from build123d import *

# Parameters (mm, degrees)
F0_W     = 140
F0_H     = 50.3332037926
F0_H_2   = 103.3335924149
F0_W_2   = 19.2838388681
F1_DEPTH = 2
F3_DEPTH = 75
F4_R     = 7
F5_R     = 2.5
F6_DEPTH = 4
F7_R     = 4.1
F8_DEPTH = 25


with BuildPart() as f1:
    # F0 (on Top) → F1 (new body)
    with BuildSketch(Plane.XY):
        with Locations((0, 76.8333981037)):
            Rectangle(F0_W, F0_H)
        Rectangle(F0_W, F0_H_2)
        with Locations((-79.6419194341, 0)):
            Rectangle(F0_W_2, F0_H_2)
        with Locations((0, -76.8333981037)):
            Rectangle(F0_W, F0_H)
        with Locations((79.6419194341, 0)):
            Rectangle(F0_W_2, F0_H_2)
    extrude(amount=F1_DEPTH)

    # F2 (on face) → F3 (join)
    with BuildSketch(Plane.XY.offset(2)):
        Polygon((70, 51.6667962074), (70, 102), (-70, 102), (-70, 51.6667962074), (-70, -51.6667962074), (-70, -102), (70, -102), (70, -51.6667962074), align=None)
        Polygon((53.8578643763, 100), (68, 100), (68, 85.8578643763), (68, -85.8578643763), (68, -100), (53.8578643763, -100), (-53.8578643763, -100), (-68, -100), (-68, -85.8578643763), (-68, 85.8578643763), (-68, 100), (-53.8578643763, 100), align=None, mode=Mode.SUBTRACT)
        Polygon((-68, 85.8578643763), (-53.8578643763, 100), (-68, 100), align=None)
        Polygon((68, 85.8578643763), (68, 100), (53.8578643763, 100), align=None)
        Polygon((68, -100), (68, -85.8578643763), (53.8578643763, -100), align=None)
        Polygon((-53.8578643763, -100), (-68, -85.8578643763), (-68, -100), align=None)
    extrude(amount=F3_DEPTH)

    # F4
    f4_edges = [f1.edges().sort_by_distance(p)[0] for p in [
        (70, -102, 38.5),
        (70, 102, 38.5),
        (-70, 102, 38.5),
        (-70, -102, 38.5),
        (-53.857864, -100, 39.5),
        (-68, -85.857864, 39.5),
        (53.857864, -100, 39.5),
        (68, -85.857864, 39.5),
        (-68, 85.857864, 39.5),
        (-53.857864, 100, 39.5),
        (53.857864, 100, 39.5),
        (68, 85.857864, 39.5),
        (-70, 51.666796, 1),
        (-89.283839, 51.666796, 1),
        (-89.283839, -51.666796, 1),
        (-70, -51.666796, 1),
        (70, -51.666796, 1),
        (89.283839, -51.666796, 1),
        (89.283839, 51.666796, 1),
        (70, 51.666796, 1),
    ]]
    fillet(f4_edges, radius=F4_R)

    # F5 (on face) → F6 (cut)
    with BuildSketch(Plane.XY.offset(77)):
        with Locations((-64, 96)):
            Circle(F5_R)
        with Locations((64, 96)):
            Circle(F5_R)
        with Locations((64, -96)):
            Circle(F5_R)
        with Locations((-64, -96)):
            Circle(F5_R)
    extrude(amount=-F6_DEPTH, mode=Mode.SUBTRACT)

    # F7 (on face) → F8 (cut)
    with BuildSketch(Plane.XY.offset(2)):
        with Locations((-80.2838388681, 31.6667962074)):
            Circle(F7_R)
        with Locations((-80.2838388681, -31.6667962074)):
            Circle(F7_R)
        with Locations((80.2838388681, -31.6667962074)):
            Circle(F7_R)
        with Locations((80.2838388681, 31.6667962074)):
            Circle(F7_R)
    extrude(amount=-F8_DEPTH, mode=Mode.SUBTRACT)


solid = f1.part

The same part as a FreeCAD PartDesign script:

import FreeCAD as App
import Part
import Sketcher

V = App.Vector
Q = App.Units.Quantity


def edges_at(feature, points):
    """Names of the edges that pass closest to the given points."""
    edges = feature.Shape.Edges
    near = lambda p: min(range(len(edges)), key=lambda i: edges[i].distToShape(Part.Vertex(*p))[0])
    return sorted({f"Edge{near(p) + 1}" for p in points})


def add_polygon(sketch, points):
    """Adds a closed chain of lines whose ends are joined by coincident constraints."""
    first, n = sketch.GeometryCount, len(points)
    for a, b in zip(points, points[1:] + points[:1]):
        sketch.addGeometry(Part.LineSegment(App.Vector(*a, 0), App.Vector(*b, 0)), False)
    for i in range(n):
        sketch.addConstraint(Sketcher.Constraint("Coincident", first + i, 2, first + (i + 1) % n, 1))

doc = App.newDocument("Part")
body = doc.addObject("PartDesign::Body", "Body")

# Sketch on XY plane
sketch1 = body.newObject("Sketcher::SketchObject", "Sketch")
sketch1.AttachmentSupport = (doc.getObject("XY_Plane"), [""])
sketch1.MapMode = "FlatFace"
add_polygon(sketch1, [(-70, 102), (-70, 52), (-89, 52), (-89, -52), (-70, -52), (-70, -102), (70, -102), (70, -52), (89, -52), (89, 52), (70, 52), (70, 102)])  # lines 0-11
sketch1.addConstraint([
    Sketcher.Constraint("Vertical", 0),
    Sketcher.Constraint("Horizontal", 1),
    Sketcher.Constraint("Vertical", 2),
    Sketcher.Constraint("Horizontal", 3),
    Sketcher.Constraint("Vertical", 4),
    Sketcher.Constraint("Horizontal", 5),
    Sketcher.Constraint("Vertical", 6),
    Sketcher.Constraint("Horizontal", 7),
    Sketcher.Constraint("Vertical", 8),
    Sketcher.Constraint("Horizontal", 9),
    Sketcher.Constraint("Vertical", 10),
    Sketcher.Constraint("Horizontal", 11),
    Sketcher.Constraint("Symmetric", 0, 2, 6, 2, -1, 1),
    Sketcher.Constraint("Symmetric", 2, 2, 8, 2, -1, 1),
    Sketcher.Constraint("Symmetric", 4, 2, 10, 2, -1, 1),
    Sketcher.Constraint("Symmetric", 3, 2, 6, 2, -2),
    Sketcher.Constraint("DistanceX", 5, 1, 5, 2, Q("140 mm")),
    Sketcher.Constraint("DistanceY", 4, 2, -1, 1, Q("102 mm")),
    Sketcher.Constraint("DistanceX", 1, 2, 1, 1, Q("19.283839 mm")),
    Sketcher.Constraint("DistanceY", 0, 2, 0, 1, Q("50.333204 mm")),
])
pad1 = body.newObject("PartDesign::Pad", "Pad")
pad1.Profile = sketch1
pad1.Length = 2

# Sketch on XY plane
sketch2 = body.newObject("Sketcher::SketchObject", "Sketch001")
sketch2.AttachmentSupport = (doc.getObject("XY_Plane"), [""])
sketch2.MapMode = "FlatFace"
sketch2.AttachmentOffset = App.Placement(V(0, 0, 2), App.Rotation())
add_polygon(sketch2, [(70, 102), (-70, 102), (-70, -102), (70, -102)])  # lines 0-3
add_polygon(sketch2, [(-54, 100), (54, 100), (68, 86), (68, -86), (54, -100), (-54, -100), (-68, -86), (-68, 86)])  # lines 4-11
sketch2.addConstraint([
    Sketcher.Constraint("Horizontal", 0),
    Sketcher.Constraint("Vertical", 1),
    Sketcher.Constraint("Horizontal", 2),
    Sketcher.Constraint("Vertical", 3),
    Sketcher.Constraint("Horizontal", 4),
    Sketcher.Constraint("Vertical", 6),
    Sketcher.Constraint("Horizontal", 8),
    Sketcher.Constraint("Vertical", 10),
    Sketcher.Constraint("Symmetric", 0, 2, 2, 2, -1, 1),
    Sketcher.Constraint("Symmetric", 4, 2, 8, 2, -1, 1),
    Sketcher.Constraint("Symmetric", 5, 2, 9, 2, -1, 1),
    Sketcher.Constraint("Perpendicular", 5, 7),
    Sketcher.Constraint("Perpendicular", 9, 11),
    Sketcher.Constraint("Horizontal", 6, 2, 9, 2),
    Sketcher.Constraint("Horizontal", 5, 2, 10, 2),
    Sketcher.Constraint("Vertical", 4, 2, 7, 2),
    Sketcher.Constraint("DistanceX", 0, 2, 0, 1, Q("140 mm")),
    Sketcher.Constraint("DistanceY", 1, 2, 1, 1, Q("204 mm")),
    Sketcher.Constraint("Distance", 5, Q("20 mm")),
    Sketcher.Constraint("DistanceY", -1, 1, 4, 2, Q("100 mm")),
    Sketcher.Constraint("DistanceX", -1, 1, 5, 2, Q("68 mm")),
])
pad2 = body.newObject("PartDesign::Pad", "Pad001")
pad2.Profile = sketch2
pad2.Length = 75
doc.recompute()

fillet = body.newObject("PartDesign::Fillet", "Fillet")
fillet.Base = (pad2, edges_at(pad2, [
    (70, -102, 38.5),
    (70, 102, 38.5),
    (-70, 102, 38.5),
    (-70, -102, 38.5),
    (-53.858, -100, 39.5),
    (-68, -85.858, 39.5),
    (53.858, -100, 39.5),
    (68, -85.858, 39.5),
    (-68, 85.858, 39.5),
    (-53.858, 100, 39.5),
    (53.858, 100, 39.5),
    (68, 85.858, 39.5),
    (-70, 51.667, 1),
    (-89.284, 51.667, 1),
    (-89.284, -51.667, 1),
    (-70, -51.667, 1),
    (70, -51.667, 1),
    (89.284, -51.667, 1),
    (89.284, 51.667, 1),
    (70, 51.667, 1),
]))
fillet.Radius = 7

# Sketch on XY plane
sketch3 = body.newObject("Sketcher::SketchObject", "Sketch002")
sketch3.AttachmentSupport = (doc.getObject("XY_Plane"), [""])
sketch3.MapMode = "FlatFace"
sketch3.AttachmentOffset = App.Placement(V(0, 0, 77), App.Rotation())
sketch3.addGeometry([
    Part.Circle(V(-64, 96, 0), V(0, 0, 1), 2.5),
    Part.Circle(V(64, 96, 0), V(0, 0, 1), 2.5),
    Part.Circle(V(64, -96, 0), V(0, 0, 1), 2.5),
    Part.Circle(V(-64, -96, 0), V(0, 0, 1), 2.5),
], False)
sketch3.addConstraint([
    Sketcher.Constraint("Equal", 0, 1),
    Sketcher.Constraint("Equal", 1, 2),
    Sketcher.Constraint("Equal", 2, 3),
    Sketcher.Constraint("Symmetric", 0, 3, 2, 3, -1, 1),
    Sketcher.Constraint("Symmetric", 1, 3, 3, 3, -1, 1),
    Sketcher.Constraint("Symmetric", 0, 3, 1, 3, -2),
    Sketcher.Constraint("Diameter", 0, Q("5 mm")),
    Sketcher.Constraint("DistanceX", 0, 3, -1, 1, Q("64 mm")),
    Sketcher.Constraint("DistanceY", -1, 1, 0, 3, Q("96 mm")),
])
pocket1 = body.newObject("PartDesign::Pocket", "Pocket")
pocket1.Profile = sketch3
pocket1.Length = 4

# Sketch on XY plane
sketch4 = body.newObject("Sketcher::SketchObject", "Sketch003")
sketch4.AttachmentSupport = (doc.getObject("XY_Plane"), [""])
sketch4.MapMode = "FlatFace"
sketch4.AttachmentOffset = App.Placement(V(0, 0, 2), App.Rotation())
sketch4.addGeometry([
    Part.Circle(V(-80.3, 31.7, 0), V(0, 0, 1), 4.1),
    Part.Circle(V(-80.3, -31.7, 0), V(0, 0, 1), 4.1),
    Part.Circle(V(80.3, -31.7, 0), V(0, 0, 1), 4.1),
    Part.Circle(V(80.3, 31.7, 0), V(0, 0, 1), 4.1),
], False)
sketch4.addConstraint([
    Sketcher.Constraint("Equal", 0, 1),
    Sketcher.Constraint("Equal", 1, 2),
    Sketcher.Constraint("Equal", 2, 3),
    Sketcher.Constraint("Symmetric", 0, 3, 2, 3, -1, 1),
    Sketcher.Constraint("Symmetric", 1, 3, 3, 3, -1, 1),
    Sketcher.Constraint("Symmetric", 1, 3, 2, 3, -2),
    Sketcher.Constraint("Diameter", 0, Q("8.2 mm")),
    Sketcher.Constraint("DistanceX", 0, 3, -1, 1, Q("80.283839 mm")),
    Sketcher.Constraint("DistanceY", -1, 1, 0, 3, Q("31.666796 mm")),
])
pocket2 = body.newObject("PartDesign::Pocket", "Pocket001")
pocket2.Profile = sketch4
pocket2.Length = 25

doc.recompute()
